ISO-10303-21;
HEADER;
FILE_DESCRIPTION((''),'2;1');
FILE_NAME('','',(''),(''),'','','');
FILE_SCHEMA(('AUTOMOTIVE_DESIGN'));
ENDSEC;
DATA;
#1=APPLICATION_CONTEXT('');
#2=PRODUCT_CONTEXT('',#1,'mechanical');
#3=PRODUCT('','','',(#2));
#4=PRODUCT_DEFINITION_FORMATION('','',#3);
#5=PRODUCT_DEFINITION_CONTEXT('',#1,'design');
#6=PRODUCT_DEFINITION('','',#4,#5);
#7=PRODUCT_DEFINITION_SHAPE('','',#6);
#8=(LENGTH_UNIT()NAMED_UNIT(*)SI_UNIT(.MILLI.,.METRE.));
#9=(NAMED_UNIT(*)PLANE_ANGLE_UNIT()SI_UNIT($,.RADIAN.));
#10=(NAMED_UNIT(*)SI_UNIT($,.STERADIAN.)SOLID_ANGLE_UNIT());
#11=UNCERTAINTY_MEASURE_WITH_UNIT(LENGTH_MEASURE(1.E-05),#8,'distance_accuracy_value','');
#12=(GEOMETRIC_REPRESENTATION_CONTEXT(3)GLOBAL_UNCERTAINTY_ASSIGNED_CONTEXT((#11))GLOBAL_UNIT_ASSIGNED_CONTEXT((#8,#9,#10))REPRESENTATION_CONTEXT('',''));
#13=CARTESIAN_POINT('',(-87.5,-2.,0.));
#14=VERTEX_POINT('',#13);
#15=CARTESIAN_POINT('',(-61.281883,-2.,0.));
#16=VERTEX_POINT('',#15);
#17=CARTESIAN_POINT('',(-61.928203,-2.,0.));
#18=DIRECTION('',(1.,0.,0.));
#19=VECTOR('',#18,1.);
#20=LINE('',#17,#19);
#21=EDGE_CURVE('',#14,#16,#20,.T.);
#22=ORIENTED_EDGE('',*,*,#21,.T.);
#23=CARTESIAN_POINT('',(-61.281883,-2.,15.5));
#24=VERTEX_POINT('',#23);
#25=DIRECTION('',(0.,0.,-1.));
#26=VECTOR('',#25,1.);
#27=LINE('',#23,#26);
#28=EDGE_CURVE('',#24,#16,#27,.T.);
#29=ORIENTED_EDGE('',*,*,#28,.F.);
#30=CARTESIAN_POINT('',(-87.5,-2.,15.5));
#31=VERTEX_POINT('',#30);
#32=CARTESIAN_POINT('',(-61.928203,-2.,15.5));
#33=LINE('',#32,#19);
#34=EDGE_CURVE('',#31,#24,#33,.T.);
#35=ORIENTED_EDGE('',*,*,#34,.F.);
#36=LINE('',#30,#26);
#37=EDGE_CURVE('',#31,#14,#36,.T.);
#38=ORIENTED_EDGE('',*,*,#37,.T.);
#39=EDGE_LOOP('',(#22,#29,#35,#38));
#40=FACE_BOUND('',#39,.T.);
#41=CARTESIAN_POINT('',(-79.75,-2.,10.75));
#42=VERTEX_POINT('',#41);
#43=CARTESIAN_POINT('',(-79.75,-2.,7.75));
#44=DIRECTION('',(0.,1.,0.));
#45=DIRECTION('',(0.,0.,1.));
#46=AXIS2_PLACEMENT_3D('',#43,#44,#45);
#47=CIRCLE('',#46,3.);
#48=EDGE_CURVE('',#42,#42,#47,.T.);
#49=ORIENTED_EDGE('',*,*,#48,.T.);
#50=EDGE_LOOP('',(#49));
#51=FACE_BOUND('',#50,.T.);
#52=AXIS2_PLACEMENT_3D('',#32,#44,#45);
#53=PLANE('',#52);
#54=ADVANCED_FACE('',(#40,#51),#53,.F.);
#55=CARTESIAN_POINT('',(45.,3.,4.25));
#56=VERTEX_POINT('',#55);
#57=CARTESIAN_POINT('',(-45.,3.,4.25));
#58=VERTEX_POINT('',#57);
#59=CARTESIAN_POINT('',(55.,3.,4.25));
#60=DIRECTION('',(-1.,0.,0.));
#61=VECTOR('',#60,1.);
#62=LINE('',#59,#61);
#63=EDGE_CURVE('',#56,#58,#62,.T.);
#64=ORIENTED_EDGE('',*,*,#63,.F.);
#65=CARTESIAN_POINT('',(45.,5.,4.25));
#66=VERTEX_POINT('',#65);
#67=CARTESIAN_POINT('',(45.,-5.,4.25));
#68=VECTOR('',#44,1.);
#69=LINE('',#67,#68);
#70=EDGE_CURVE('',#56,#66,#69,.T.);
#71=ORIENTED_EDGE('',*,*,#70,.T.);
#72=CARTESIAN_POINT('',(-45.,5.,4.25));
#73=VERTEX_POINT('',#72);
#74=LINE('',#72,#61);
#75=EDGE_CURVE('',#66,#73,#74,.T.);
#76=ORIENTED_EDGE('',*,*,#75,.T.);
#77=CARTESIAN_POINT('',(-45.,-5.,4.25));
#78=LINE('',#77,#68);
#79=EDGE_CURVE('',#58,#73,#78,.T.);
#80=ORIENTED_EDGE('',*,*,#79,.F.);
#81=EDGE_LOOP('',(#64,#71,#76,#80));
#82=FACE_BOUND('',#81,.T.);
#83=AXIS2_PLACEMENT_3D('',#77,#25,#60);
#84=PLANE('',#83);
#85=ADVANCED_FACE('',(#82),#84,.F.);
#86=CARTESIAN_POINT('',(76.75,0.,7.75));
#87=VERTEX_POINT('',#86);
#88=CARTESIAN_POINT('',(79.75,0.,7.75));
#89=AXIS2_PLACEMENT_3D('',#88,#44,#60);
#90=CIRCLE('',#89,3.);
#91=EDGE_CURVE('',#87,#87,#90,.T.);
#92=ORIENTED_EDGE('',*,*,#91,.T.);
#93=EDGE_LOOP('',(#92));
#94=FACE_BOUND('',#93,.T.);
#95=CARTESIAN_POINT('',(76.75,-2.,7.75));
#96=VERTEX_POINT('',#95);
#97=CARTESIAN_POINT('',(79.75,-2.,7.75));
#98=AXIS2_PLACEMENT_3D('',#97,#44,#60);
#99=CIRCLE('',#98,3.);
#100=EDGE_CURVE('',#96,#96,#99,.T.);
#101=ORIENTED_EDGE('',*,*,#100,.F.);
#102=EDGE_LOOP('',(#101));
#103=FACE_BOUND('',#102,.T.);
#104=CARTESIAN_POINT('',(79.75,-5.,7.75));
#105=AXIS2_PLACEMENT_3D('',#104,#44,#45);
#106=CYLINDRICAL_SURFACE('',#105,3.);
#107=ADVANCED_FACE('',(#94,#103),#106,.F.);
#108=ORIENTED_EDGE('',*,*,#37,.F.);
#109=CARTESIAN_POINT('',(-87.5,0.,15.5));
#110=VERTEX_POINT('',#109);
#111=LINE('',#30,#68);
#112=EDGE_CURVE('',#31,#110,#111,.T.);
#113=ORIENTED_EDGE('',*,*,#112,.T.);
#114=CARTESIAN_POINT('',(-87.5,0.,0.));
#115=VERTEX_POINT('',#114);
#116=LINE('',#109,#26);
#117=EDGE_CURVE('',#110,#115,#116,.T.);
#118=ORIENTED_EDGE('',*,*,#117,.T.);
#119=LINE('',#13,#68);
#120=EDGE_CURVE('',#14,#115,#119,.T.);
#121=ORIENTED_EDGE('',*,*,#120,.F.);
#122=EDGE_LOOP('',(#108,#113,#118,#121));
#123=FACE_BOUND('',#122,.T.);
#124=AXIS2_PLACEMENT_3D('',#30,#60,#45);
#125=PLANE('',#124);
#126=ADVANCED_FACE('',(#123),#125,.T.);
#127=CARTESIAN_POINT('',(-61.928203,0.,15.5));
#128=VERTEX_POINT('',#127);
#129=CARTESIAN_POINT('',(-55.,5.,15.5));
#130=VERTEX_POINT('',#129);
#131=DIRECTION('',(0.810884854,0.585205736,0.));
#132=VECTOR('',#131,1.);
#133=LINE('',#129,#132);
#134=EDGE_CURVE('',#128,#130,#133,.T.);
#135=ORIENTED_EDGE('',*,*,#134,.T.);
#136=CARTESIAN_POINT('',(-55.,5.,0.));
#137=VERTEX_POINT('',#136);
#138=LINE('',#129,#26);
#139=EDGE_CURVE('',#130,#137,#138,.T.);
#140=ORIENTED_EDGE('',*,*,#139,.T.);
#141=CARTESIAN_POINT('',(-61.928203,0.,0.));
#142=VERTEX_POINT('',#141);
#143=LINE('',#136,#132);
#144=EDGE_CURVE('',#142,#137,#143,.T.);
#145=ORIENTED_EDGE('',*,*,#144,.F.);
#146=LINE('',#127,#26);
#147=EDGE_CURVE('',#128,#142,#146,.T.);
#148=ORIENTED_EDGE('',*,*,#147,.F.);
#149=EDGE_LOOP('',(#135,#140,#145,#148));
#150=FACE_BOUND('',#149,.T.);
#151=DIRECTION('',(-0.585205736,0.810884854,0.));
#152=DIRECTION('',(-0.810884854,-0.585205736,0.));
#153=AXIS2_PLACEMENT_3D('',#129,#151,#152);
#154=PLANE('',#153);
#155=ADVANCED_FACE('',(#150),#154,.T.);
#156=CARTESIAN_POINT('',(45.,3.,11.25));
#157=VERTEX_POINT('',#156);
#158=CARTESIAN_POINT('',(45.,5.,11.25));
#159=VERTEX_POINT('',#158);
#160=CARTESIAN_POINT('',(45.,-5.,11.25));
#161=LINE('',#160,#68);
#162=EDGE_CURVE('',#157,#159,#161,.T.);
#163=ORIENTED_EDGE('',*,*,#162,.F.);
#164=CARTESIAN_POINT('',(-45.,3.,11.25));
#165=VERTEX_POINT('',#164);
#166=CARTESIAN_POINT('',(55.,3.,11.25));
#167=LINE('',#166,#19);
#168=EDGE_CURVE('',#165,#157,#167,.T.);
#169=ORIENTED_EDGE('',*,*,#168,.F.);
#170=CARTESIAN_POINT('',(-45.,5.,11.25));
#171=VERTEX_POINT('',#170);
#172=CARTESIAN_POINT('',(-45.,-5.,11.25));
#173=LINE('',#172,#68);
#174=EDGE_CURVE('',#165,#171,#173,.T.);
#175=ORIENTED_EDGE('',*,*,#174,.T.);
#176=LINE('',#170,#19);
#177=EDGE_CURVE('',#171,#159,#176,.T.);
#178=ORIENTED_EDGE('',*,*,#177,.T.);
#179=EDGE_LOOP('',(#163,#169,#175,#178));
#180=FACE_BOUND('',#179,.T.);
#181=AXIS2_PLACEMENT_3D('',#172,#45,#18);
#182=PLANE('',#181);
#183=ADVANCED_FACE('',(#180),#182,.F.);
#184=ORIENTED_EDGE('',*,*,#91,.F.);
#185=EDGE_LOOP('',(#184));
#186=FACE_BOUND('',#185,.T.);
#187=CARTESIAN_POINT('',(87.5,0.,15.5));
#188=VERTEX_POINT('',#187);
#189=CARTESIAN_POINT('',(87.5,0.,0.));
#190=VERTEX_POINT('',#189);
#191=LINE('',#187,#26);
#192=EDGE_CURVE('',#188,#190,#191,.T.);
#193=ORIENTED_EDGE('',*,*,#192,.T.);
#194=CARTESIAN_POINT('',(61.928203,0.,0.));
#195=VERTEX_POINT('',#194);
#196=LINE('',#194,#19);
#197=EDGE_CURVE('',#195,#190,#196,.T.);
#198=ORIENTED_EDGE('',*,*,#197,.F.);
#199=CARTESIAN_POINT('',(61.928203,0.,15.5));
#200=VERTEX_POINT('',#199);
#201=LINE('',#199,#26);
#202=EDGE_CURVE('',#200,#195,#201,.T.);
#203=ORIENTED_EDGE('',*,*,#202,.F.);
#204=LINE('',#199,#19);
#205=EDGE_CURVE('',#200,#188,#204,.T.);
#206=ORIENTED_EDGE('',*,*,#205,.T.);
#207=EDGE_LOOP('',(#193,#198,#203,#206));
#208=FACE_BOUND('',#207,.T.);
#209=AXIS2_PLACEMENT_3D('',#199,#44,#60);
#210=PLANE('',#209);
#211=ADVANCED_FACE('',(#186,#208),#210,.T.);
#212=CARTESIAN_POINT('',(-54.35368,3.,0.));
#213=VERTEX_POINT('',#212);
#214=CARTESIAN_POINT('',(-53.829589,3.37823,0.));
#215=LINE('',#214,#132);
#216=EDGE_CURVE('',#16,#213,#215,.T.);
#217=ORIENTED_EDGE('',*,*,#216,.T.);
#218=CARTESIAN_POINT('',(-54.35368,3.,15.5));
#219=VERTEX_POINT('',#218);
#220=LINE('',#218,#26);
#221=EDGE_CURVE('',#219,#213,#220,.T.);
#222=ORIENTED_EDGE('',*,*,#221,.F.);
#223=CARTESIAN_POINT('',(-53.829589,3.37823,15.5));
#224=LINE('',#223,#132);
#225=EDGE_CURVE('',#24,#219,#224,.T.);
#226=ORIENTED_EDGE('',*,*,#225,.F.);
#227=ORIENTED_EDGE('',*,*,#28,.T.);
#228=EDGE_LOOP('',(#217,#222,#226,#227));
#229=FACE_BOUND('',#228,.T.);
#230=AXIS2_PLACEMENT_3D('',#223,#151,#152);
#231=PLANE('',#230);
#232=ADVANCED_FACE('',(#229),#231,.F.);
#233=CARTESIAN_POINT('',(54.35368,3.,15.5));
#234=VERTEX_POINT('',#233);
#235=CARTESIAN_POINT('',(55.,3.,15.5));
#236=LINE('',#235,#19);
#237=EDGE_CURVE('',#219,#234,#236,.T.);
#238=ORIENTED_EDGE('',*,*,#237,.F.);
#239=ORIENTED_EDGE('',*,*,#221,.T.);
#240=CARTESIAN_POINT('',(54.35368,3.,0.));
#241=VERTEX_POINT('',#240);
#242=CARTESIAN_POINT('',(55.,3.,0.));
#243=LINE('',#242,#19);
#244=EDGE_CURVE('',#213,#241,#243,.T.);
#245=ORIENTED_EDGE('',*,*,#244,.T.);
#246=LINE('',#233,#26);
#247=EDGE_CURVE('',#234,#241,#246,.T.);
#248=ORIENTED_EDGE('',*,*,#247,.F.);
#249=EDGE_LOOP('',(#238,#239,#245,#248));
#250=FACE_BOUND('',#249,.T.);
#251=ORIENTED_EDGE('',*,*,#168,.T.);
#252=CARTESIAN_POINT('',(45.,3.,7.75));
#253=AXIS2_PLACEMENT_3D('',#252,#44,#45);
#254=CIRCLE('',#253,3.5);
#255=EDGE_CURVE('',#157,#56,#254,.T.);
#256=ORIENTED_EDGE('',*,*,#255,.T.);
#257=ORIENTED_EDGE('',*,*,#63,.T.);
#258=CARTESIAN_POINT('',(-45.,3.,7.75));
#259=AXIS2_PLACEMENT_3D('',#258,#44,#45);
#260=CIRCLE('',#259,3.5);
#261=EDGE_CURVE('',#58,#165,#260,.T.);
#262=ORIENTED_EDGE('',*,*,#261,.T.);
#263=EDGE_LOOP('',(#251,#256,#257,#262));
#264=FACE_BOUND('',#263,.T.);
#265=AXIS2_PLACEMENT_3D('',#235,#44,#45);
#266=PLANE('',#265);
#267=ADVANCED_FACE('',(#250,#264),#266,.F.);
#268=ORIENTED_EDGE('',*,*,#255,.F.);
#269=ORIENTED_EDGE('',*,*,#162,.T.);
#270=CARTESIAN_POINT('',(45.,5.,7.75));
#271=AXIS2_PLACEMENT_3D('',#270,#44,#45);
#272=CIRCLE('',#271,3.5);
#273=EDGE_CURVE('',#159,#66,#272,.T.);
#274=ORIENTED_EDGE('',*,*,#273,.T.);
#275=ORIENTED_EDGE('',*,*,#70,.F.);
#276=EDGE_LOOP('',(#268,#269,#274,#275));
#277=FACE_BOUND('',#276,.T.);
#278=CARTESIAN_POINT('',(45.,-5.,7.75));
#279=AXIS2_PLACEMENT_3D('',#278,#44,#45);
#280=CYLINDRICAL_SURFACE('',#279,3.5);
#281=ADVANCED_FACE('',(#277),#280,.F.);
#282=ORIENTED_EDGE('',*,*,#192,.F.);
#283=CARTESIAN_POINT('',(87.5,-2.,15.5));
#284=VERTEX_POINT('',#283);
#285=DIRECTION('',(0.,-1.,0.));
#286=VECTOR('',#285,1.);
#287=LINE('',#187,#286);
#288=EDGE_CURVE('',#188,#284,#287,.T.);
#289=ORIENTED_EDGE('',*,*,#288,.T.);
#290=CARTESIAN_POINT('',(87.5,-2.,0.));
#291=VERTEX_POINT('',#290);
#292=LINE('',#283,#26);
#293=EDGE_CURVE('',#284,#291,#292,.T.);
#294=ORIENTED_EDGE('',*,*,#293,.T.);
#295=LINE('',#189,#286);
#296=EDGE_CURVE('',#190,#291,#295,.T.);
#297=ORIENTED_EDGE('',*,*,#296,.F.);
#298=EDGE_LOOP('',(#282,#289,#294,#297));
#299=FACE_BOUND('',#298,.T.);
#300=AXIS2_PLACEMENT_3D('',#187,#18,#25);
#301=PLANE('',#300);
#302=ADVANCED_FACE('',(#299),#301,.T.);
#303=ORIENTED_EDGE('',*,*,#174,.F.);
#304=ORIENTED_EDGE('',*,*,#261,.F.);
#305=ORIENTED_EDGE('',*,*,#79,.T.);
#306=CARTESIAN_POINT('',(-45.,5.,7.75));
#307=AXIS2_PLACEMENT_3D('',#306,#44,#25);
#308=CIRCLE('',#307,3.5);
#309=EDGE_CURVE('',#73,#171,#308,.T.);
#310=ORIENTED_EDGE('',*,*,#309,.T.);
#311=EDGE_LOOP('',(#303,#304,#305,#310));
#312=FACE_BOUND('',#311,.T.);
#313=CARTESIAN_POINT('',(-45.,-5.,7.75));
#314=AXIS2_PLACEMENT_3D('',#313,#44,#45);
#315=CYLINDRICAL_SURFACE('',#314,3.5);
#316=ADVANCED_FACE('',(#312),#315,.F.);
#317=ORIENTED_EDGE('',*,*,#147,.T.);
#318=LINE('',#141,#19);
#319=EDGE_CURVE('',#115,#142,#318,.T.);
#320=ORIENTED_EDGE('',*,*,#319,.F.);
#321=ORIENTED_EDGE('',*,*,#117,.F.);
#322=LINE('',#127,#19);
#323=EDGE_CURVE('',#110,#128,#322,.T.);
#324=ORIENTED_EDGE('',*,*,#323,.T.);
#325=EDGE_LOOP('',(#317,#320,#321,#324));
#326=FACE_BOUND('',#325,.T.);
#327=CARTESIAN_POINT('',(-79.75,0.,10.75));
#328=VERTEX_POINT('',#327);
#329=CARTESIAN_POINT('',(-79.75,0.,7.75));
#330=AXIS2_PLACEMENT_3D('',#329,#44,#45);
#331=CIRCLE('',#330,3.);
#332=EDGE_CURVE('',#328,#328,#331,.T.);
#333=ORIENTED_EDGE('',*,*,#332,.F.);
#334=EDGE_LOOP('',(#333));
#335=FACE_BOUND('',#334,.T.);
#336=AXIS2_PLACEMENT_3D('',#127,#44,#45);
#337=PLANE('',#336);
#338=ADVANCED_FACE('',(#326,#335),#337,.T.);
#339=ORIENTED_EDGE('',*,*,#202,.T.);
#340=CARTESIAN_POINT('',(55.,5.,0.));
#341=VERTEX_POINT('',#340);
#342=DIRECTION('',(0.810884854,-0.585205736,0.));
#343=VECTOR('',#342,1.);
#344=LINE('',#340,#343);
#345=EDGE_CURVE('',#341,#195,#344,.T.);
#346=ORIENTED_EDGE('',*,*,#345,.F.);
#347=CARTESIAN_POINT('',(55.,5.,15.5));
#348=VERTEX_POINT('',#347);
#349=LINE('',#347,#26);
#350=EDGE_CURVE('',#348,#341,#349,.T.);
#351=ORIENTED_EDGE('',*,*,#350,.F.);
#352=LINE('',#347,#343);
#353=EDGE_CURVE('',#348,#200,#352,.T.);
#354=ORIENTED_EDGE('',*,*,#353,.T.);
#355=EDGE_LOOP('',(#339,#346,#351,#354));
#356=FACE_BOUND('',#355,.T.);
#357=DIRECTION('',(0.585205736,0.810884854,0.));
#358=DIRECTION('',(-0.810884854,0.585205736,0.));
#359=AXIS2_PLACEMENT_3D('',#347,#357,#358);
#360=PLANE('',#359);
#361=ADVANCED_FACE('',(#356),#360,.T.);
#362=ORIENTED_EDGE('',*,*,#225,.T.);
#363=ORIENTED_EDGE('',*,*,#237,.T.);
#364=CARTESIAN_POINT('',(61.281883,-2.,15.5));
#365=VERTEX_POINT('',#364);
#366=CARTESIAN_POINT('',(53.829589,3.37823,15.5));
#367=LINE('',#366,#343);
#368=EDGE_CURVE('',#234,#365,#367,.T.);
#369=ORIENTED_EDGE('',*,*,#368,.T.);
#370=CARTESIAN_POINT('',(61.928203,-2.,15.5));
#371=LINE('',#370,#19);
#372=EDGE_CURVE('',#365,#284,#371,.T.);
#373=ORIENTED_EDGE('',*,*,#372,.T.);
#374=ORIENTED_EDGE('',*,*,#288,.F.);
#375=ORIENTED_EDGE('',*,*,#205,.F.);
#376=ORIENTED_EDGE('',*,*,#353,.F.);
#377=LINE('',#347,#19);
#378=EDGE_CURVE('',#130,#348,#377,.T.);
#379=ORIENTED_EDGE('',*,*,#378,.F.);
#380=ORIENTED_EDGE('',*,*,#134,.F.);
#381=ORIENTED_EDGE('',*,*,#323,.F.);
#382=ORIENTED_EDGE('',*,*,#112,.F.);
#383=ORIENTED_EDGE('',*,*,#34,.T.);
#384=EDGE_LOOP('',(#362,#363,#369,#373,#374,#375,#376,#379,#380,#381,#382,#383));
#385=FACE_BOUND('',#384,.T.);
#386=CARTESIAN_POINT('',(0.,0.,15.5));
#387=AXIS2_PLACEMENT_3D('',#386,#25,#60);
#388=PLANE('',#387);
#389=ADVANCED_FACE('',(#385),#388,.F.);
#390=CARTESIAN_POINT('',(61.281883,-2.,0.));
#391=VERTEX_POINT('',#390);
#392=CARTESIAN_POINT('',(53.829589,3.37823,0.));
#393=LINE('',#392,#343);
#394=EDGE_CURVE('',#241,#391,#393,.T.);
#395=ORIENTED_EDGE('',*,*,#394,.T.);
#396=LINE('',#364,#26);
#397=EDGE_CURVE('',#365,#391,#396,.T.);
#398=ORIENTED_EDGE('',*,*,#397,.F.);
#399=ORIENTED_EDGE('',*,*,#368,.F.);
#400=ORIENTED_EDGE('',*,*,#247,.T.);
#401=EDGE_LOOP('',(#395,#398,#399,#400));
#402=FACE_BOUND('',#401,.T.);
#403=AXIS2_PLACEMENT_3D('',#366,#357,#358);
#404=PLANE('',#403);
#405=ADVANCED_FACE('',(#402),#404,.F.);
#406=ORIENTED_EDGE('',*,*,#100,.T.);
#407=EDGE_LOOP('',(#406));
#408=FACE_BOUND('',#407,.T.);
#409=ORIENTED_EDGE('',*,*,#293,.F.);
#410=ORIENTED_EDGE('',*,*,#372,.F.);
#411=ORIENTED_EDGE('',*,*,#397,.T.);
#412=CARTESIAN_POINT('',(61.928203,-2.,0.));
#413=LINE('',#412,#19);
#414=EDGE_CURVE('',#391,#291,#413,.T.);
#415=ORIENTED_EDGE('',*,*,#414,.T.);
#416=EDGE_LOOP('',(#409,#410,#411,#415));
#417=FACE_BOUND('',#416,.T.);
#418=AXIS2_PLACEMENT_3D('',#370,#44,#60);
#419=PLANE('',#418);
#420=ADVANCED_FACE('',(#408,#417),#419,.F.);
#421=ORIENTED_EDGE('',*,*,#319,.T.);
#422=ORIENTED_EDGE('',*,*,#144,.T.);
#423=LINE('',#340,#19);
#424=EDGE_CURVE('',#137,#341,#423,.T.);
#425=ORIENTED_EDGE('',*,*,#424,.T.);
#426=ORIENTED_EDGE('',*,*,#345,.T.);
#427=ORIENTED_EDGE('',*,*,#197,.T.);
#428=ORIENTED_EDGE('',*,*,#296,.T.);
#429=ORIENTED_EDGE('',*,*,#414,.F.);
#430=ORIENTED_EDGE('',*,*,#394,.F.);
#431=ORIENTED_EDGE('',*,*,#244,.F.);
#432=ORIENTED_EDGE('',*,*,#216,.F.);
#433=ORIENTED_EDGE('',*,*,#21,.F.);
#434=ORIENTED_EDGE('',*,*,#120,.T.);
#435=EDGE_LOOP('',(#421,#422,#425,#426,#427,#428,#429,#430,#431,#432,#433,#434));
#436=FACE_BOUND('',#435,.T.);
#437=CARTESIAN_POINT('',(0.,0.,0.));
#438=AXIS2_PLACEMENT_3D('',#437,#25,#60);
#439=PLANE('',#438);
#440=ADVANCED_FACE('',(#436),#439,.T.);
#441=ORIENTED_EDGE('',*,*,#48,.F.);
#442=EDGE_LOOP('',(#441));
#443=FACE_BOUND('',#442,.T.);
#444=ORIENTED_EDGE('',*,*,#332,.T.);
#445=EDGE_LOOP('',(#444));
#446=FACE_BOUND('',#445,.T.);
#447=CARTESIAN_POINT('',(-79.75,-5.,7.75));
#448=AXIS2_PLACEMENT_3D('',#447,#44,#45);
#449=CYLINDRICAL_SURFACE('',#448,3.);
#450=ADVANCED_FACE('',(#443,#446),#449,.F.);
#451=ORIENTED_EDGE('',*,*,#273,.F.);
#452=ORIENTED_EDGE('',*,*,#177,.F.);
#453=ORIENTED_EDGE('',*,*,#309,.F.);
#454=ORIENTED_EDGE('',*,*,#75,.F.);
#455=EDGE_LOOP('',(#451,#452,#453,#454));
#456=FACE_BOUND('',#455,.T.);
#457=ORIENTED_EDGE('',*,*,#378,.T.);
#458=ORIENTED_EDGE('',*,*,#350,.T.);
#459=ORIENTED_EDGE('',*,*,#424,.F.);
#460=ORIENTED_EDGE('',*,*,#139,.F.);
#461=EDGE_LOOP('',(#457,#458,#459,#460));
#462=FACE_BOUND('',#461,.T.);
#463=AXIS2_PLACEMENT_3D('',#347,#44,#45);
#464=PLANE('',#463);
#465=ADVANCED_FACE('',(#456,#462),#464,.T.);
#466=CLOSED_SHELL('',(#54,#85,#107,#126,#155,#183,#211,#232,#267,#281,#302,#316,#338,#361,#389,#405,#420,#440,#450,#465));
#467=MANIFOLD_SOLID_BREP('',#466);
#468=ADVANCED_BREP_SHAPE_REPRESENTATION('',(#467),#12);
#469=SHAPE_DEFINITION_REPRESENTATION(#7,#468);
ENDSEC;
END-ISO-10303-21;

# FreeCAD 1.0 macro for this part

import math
import FreeCAD as App
import Part
import Sketcher

doc = App.newDocument("Part")
body = doc.addObject("PartDesign::Body", "Body")

# Sketch on XY plane
sketch1 = doc.addObject("Sketcher::SketchObject", "Sketch")
body.addObject(sketch1)
sketch1.AttachmentSupport = (doc.XY_Plane, [""])
sketch1.MapMode = "FlatFace"
sketch1.addGeometry([
    Part.LineSegment(App.Vector(87.5, 0, 0), App.Vector(61.928203, 0, 0)),  # 0
    Part.LineSegment(App.Vector(61.928203, 0, 0), App.Vector(55, 5, 0)),  # 1
    Part.LineSegment(App.Vector(55, 5, 0), App.Vector(-55, 5, 0)),  # 2
    Part.LineSegment(App.Vector(-55, 5, 0), App.Vector(-61.928203, 0, 0)),  # 3
    Part.LineSegment(App.Vector(-61.928203, 0, 0), App.Vector(-87.5, 0, 0)),  # 4
    Part.LineSegment(App.Vector(-87.5, 0, 0), App.Vector(-87.5, -2, 0)),  # 5
    Part.LineSegment(App.Vector(-87.5, -2, 0), App.Vector(-61.281883, -2, 0)),  # 6
    Part.LineSegment(App.Vector(-61.281883, -2, 0), App.Vector(-54.35368, 3, 0)),  # 7
    Part.LineSegment(App.Vector(-54.35368, 3, 0), App.Vector(54.35368, 3, 0)),  # 8
    Part.LineSegment(App.Vector(54.35368, 3, 0), App.Vector(61.281883, -2, 0)),  # 9
    Part.LineSegment(App.Vector(61.281883, -2, 0), App.Vector(87.5, -2, 0)),  # 10
    Part.LineSegment(App.Vector(87.5, -2, 0), App.Vector(87.5, 0, 0)),  # 11
], False)
sketch1.addConstraint([
    Sketcher.Constraint("Coincident", 0, 2, 1, 1),
    Sketcher.Constraint("Coincident", 1, 2, 2, 1),
    Sketcher.Constraint("Coincident", 2, 2, 3, 1),
    Sketcher.Constraint("Coincident", 3, 2, 4, 1),
    Sketcher.Constraint("Coincident", 4, 2, 5, 1),
    Sketcher.Constraint("Coincident", 5, 2, 6, 1),
    Sketcher.Constraint("Coincident", 6, 2, 7, 1),
    Sketcher.Constraint("Coincident", 7, 2, 8, 1),
    Sketcher.Constraint("Coincident", 8, 2, 9, 1),
    Sketcher.Constraint("Coincident", 9, 2, 10, 1),
    Sketcher.Constraint("Coincident", 10, 2, 11, 1),
    Sketcher.Constraint("Coincident", 11, 2, 0, 1),
    Sketcher.Constraint("Horizontal", 0),
    Sketcher.Constraint("Horizontal", 2),
    Sketcher.Constraint("Horizontal", 4),
    Sketcher.Constraint("Vertical", 5),
    Sketcher.Constraint("Horizontal", 6),
    Sketcher.Constraint("Horizontal", 8),
    Sketcher.Constraint("Horizontal", 10),
    Sketcher.Constraint("Vertical", 11),
    Sketcher.Constraint("Symmetric", 0, 2, 3, 2, -1, 1),
    Sketcher.Constraint("Symmetric", 6, 2, 9, 2, -2),
    Sketcher.Constraint("Symmetric", 4, 2, 11, 2, -2),
    Sketcher.Constraint("Parallel", 3, 7),
    Sketcher.Constraint("Parallel", 1, 9),
    Sketcher.Constraint("Equal", 1, 3),
    Sketcher.Constraint("Equal", 3, 7),
    Sketcher.Constraint("DistanceX", 2, 2, 2, 1, 110.0),
    Sketcher.Constraint("DistanceY", 5, 2, 5, 1, 2.0),
    Sketcher.Constraint("DistanceY", -1, 1, 1, 2, 5.0),
    Sketcher.Constraint("DistanceX", 4, 2, -1, 1, 87.5),
    Sketcher.Constraint("DistanceX", 8, 1, 8, 2, 108.70736),
    Sketcher.Constraint("DistanceX", 0, 2, 0, 1, 25.571797),
])
pad1 = doc.addObject("PartDesign::Pad", "Pad")
body.addObject(pad1)
pad1.Profile = sketch1
pad1.Length = 15.5

# Sketch on XZ plane
sketch2 = doc.addObject("Sketcher::SketchObject", "Sketch001")
body.addObject(sketch2)
sketch2.AttachmentSupport = (doc.XZ_Plane, [""])
sketch2.MapMode = "FlatFace"
sketch2.AttachmentOffset = App.Placement(App.Vector(0, 0, -5), App.Rotation())
sketch2.addGeometry([
    Part.Circle(App.Vector(-79.75, 7.75, 0), App.Vector(0, 0, 1), 3),  # 0
    Part.Circle(App.Vector(79.75, 7.75, 0), App.Vector(0, 0, 1), 3),  # 1
    Part.LineSegment(App.Vector(45, 4.25, 0), App.Vector(-45, 4.25, 0)),  # 2
    Part.ArcOfCircle(Part.Circle(App.Vector(-45, 7.75, 0), App.Vector(0, 0, 1), 3.5), math.radians(90), math.radians(270)),  # 3
    Part.LineSegment(App.Vector(-45, 11.25, 0), App.Vector(45, 11.25, 0)),  # 4
    Part.ArcOfCircle(Part.Circle(App.Vector(45, 7.75, 0), App.Vector(0, 0, 1), 3.5), math.radians(-90), math.radians(90)),  # 5
], False)
sketch2.addConstraint([
    Sketcher.Constraint("Tangent", 2, 2, 3, 2),
    Sketcher.Constraint("Tangent", 3, 1, 4, 1),
    Sketcher.Constraint("Tangent", 4, 2, 5, 2),
    Sketcher.Constraint("Tangent", 5, 1, 2, 1),
    Sketcher.Constraint("Horizontal", 2),
    Sketcher.Constraint("Horizontal", 4),
    Sketcher.Constraint("Equal", 0, 1),
    Sketcher.Constraint("Symmetric", 0, 3, 1, 3, -2),
    Sketcher.Constraint("Horizontal", 1, 3, 3, 3),
    Sketcher.Constraint("Diameter", 0, 6.0),
    Sketcher.Constraint("Radius", 3, 3.5),
    Sketcher.Constraint("DistanceX", 2, 2, 2, 1, 90.0),
    Sketcher.Constraint("DistanceX", 3, 3, -1, 1, 45.0),
    Sketcher.Constraint("DistanceX", 0, 3, 1, 3, 159.5),
    Sketcher.Constraint("DistanceY", -1, 1, 0, 3, 7.75),
])
pocket1 = doc.addObject("PartDesign::Pocket", "Pocket")
body.addObject(pocket1)
pocket1.Profile = sketch2
pocket1.Length = 10
pocket1.Reversed = True

doc.recompute()
